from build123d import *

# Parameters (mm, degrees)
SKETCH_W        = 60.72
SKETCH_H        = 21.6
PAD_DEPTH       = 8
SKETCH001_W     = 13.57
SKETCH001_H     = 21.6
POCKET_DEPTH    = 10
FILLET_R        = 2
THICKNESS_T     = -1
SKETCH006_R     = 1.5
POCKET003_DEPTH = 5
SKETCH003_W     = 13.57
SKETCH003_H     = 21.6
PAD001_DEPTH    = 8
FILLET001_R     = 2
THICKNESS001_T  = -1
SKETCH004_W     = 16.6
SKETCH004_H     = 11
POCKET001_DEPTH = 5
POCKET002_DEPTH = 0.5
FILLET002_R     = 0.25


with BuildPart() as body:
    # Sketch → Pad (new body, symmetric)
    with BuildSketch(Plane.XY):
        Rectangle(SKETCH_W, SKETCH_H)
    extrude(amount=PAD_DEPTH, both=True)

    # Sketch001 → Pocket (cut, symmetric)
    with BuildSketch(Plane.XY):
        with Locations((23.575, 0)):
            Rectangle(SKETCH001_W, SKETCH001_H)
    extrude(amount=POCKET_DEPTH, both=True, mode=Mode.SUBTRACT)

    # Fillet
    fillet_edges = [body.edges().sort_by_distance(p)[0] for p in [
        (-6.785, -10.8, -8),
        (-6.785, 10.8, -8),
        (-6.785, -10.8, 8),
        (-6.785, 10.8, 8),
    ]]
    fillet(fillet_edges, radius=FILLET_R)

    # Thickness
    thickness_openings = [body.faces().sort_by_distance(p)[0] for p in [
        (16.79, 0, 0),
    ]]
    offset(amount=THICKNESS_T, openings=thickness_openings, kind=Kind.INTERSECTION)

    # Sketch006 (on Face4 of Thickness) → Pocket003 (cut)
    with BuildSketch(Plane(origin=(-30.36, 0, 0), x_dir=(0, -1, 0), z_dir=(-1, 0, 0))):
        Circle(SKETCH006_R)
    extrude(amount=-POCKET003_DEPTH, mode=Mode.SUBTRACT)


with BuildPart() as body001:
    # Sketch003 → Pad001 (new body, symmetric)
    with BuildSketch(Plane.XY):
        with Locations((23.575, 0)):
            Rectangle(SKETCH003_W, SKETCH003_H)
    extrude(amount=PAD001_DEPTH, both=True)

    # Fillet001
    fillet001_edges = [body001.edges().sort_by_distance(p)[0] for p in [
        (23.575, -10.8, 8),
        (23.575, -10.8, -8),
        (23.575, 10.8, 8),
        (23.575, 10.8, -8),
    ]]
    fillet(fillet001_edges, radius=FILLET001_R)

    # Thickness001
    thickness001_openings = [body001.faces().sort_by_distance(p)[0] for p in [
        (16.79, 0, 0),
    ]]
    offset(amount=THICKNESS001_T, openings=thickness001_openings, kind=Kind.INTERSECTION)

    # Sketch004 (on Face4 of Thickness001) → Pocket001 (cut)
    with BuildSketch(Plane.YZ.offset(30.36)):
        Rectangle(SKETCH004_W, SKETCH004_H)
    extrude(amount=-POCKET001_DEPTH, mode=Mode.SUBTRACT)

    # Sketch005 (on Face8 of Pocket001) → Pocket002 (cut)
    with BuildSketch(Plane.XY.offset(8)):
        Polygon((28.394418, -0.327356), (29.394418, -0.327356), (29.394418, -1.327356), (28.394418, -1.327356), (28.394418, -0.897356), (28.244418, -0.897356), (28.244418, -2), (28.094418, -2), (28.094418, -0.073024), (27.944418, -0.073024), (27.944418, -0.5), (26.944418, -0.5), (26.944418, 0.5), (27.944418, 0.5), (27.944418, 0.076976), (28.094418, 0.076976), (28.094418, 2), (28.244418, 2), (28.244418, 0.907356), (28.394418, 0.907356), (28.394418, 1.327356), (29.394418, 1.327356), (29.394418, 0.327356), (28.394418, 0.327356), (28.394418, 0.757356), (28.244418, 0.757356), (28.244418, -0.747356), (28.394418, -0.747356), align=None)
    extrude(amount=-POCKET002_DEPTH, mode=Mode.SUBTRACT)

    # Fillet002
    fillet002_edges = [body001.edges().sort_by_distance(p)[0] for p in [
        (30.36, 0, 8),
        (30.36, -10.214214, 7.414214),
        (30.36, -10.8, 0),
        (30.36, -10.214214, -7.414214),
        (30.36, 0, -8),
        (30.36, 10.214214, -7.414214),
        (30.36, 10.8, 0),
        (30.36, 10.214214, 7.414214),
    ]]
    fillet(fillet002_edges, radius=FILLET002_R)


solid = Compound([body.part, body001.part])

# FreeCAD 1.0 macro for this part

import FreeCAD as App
import Part
import Sketcher

V = App.Vector


def edges_at(feature, points):
    """Names of the edges that pass closest to the given points."""
    edges = feature.Shape.Edges
    near = lambda p: min(range(len(edges)), key=lambda i: edges[i].distToShape(Part.Vertex(*p))[0])
    return sorted({f"Edge{near(p) + 1}" for p in points})


def faces_at(feature, points):
    """Names of the faces that lie closest to the given points."""
    faces = feature.Shape.Faces
    near = lambda p: min(range(len(faces)), key=lambda i: faces[i].distToShape(Part.Vertex(*p))[0])
    return sorted({f"Face{near(p) + 1}" for p in points})

doc = App.newDocument("Part")
body = doc.addObject("PartDesign::Body", "Body")

# Sketch on XY plane
sketch1 = body.newObject("Sketcher::SketchObject", "Sketch")
sketch1.AttachmentSupport = (doc.getObject("XY_Plane"), [""])
sketch1.MapMode = "FlatFace"
sketch1.addGeometry(Part.LineSegment(V(-30.36, 10.8, 0), V(-30.36, -10.8, 0)), False)
sketch1.addGeometry(Part.LineSegment(V(-30.36, -10.8, 0), V(30.36, -10.8, 0)), False)
sketch1.addGeometry(Part.LineSegment(V(30.36, -10.8, 0), V(30.36, 10.8, 0)), False)
sketch1.addGeometry(Part.LineSegment(V(30.36, 10.8, 0), V(-30.36, 10.8, 0)), False)
sketch1.addConstraint(Sketcher.Constraint("Coincident", 0, 2, 1, 1))
sketch1.addConstraint(Sketcher.Constraint("Coincident", 1, 2, 2, 1))
sketch1.addConstraint(Sketcher.Constraint("Coincident", 2, 2, 3, 1))
sketch1.addConstraint(Sketcher.Constraint("Coincident", 3, 2, 0, 1))
sketch1.addConstraint(Sketcher.Constraint("Vertical", 0))
sketch1.addConstraint(Sketcher.Constraint("Horizontal", 1))
sketch1.addConstraint(Sketcher.Constraint("Vertical", 2))
sketch1.addConstraint(Sketcher.Constraint("Horizontal", 3))
sketch1.addConstraint(Sketcher.Constraint("Symmetric", 0, 2, 2, 2, -1, 1))
sketch1.addConstraint(Sketcher.Constraint("DistanceY", 0, 2, 0, 1, 21.6))
sketch1.addConstraint(Sketcher.Constraint("DistanceX", 1, 1, 1, 2, 60.72))
pad1 = body.newObject("PartDesign::Pad", "Pad")
pad1.Profile = sketch1
pad1.Length = 16
pad1.Midplane = True

# Sketch on XY plane
sketch2 = body.newObject("Sketcher::SketchObject", "Sketch001")
sketch2.AttachmentSupport = (doc.getObject("XY_Plane"), [""])
sketch2.MapMode = "FlatFace"
sketch2.addGeometry(Part.LineSegment(V(16.79, 10.8, 0), V(16.79, -10.8, 0)), False)
sketch2.addGeometry(Part.LineSegment(V(16.79, -10.8, 0), V(30.36, -10.8, 0)), False)
sketch2.addGeometry(Part.LineSegment(V(30.36, -10.8, 0), V(30.36, 10.8, 0)), False)
sketch2.addGeometry(Part.LineSegment(V(30.36, 10.8, 0), V(16.79, 10.8, 0)), False)
sketch2.addConstraint(Sketcher.Constraint("Coincident", 0, 2, 1, 1))
sketch2.addConstraint(Sketcher.Constraint("Coincident", 1, 2, 2, 1))
sketch2.addConstraint(Sketcher.Constraint("Coincident", 2, 2, 3, 1))
sketch2.addConstraint(Sketcher.Constraint("Coincident", 3, 2, 0, 1))
sketch2.addConstraint(Sketcher.Constraint("Vertical", 0))
sketch2.addConstraint(Sketcher.Constraint("Horizontal", 1))
sketch2.addConstraint(Sketcher.Constraint("Vertical", 2))
sketch2.addConstraint(Sketcher.Constraint("Horizontal", 3))
sketch2.addConstraint(Sketcher.Constraint("DistanceY", 0, 2, 0, 1, 21.6))
sketch2.addConstraint(Sketcher.Constraint("DistanceX", 1, 1, 1, 2, 13.57))
sketch2.addConstraint(Sketcher.Constraint("DistanceY", 0, 2, -1, 1, 10.8))
sketch2.addConstraint(Sketcher.Constraint("DistanceX", -1, 1, 0, 2, 16.79))
pocket1 = body.newObject("PartDesign::Pocket", "Pocket")
pocket1.Profile = sketch2
pocket1.Length = 20
pocket1.Midplane = True
doc.recompute()

fillet = body.newObject("PartDesign::Fillet", "Fillet")
fillet.Base = (pocket1, edges_at(pocket1, [
    (-6.785, -10.8, -8),
    (-6.785, 10.8, -8),
    (-6.785, -10.8, 8),
    (-6.785, 10.8, 8),
]))
fillet.Radius = 2
doc.recompute()

thickness = body.newObject("PartDesign::Thickness", "Thickness")
thickness.Base = (fillet, faces_at(fillet, [(16.79, 0, 0)]))
thickness.Value = 1
thickness.Reversed = True
thickness.Join = "Intersection"

# Sketch on YZ plane
sketch3 = body.newObject("Sketcher::SketchObject", "Sketch002")
sketch3.AttachmentSupport = (doc.getObject("YZ_Plane"), [""])
sketch3.MapMode = "FlatFace"
sketch3.AttachmentOffset = App.Placement(V(0, 0, -30.36), App.Rotation())
sketch3.addGeometry(Part.Circle(V(0, 0, 0), V(0, 0, 1), 1.5), False)
sketch3.addConstraint(Sketcher.Constraint("Coincident", 0, 3, -1, 1))
sketch3.addConstraint(Sketcher.Constraint("Diameter", 0, 3.0))
pocket2 = body.newObject("PartDesign::Pocket", "Pocket001")
pocket2.Profile = sketch3
pocket2.Length = 5
pocket2.Reversed = True
body2 = doc.addObject("PartDesign::Body", "Body001")

# Sketch on XY plane
sketch4 = body2.newObject("Sketcher::SketchObject", "Sketch003")
sketch4.AttachmentSupport = (doc.getObject("XY_Plane001"), [""])
sketch4.MapMode = "FlatFace"
sketch4.addGeometry(Part.LineSegment(V(16.79, 10.8, 0), V(16.79, -10.8, 0)), False)
sketch4.addGeometry(Part.LineSegment(V(16.79, -10.8, 0), V(30.36, -10.8, 0)), False)
sketch4.addGeometry(Part.LineSegment(V(30.36, -10.8, 0), V(30.36, 10.8, 0)), False)
sketch4.addGeometry(Part.LineSegment(V(30.36, 10.8, 0), V(16.79, 10.8, 0)), False)
sketch4.addConstraint(Sketcher.Constraint("Coincident", 0, 2, 1, 1))
sketch4.addConstraint(Sketcher.Constraint("Coincident", 1, 2, 2, 1))
sketch4.addConstraint(Sketcher.Constraint("Coincident", 2, 2, 3, 1))
sketch4.addConstraint(Sketcher.Constraint("Coincident", 3, 2, 0, 1))
sketch4.addConstraint(Sketcher.Constraint("Vertical", 0))
sketch4.addConstraint(Sketcher.Constraint("Horizontal", 1))
sketch4.addConstraint(Sketcher.Constraint("Vertical", 2))
sketch4.addConstraint(Sketcher.Constraint("Horizontal", 3))
sketch4.addConstraint(Sketcher.Constraint("DistanceY", 0, 2, 0, 1, 21.6))
sketch4.addConstraint(Sketcher.Constraint("DistanceX", 1, 1, 1, 2, 13.57))
sketch4.addConstraint(Sketcher.Constraint("DistanceY", 0, 2, -1, 1, 10.8))
sketch4.addConstraint(Sketcher.Constraint("DistanceX", -1, 1, 0, 2, 16.79))
pad2 = body2.newObject("PartDesign::Pad", "Pad001")
pad2.Profile = sketch4
pad2.Length = 16
pad2.Midplane = True
doc.recompute()

fillet2 = body2.newObject("PartDesign::Fillet", "Fillet001")
fillet2.Base = (pad2, edges_at(pad2, [
    (23.575, -10.8, 8),
    (23.575, -10.8, -8),
    (23.575, 10.8, 8),
    (23.575, 10.8, -8),
]))
fillet2.Radius = 2
doc.recompute()

thickness2 = body2.newObject("PartDesign::Thickness", "Thickness001")
thickness2.Base = (fillet2, faces_at(fillet2, [(16.79, 0, 0)]))
thickness2.Value = 1
thickness2.Reversed = True
thickness2.Join = "Intersection"

# Sketch on YZ plane
sketch5 = body2.newObject("Sketcher::SketchObject", "Sketch004")
sketch5.AttachmentSupport = (doc.getObject("YZ_Plane001"), [""])
sketch5.MapMode = "FlatFace"
sketch5.AttachmentOffset = App.Placement(V(0, 0, 30.36), App.Rotation())
sketch5.addGeometry(Part.LineSegment(V(-8.3, 5.5, 0), V(-8.3, -5.5, 0)), False)
sketch5.addGeometry(Part.LineSegment(V(-8.3, -5.5, 0), V(8.3, -5.5, 0)), False)
sketch5.addGeometry(Part.LineSegment(V(8.3, -5.5, 0), V(8.3, 5.5, 0)), False)
sketch5.addGeometry(Part.LineSegment(V(8.3, 5.5, 0), V(-8.3, 5.5, 0)), False)
sketch5.addConstraint(Sketcher.Constraint("Coincident", 0, 2, 1, 1))
sketch5.addConstraint(Sketcher.Constraint("Coincident", 1, 2, 2, 1))
sketch5.addConstraint(Sketcher.Constraint("Coincident", 2, 2, 3, 1))
sketch5.addConstraint(Sketcher.Constraint("Coincident", 3, 2, 0, 1))
sketch5.addConstraint(Sketcher.Constraint("Vertical", 0))
sketch5.addConstraint(Sketcher.Constraint("Horizontal", 1))
sketch5.addConstraint(Sketcher.Constraint("Vertical", 2))
sketch5.addConstraint(Sketcher.Constraint("Horizontal", 3))
sketch5.addConstraint(Sketcher.Constraint("Symmetric", 0, 2, 2, 2, -1, 1))
sketch5.addConstraint(Sketcher.Constraint("DistanceY", 0, 2, 0, 1, 11.0))
sketch5.addConstraint(Sketcher.Constraint("DistanceX", 1, 1, 1, 2, 16.6))
pocket3 = body2.newObject("PartDesign::Pocket", "Pocket002")
pocket3.Profile = sketch5
pocket3.Length = 5

# Sketch on XY plane
sketch6 = body2.newObject("Sketcher::SketchObject", "Sketch005")
sketch6.AttachmentSupport = (doc.getObject("XY_Plane001"), [""])
sketch6.MapMode = "FlatFace"
sketch6.AttachmentOffset = App.Placement(V(0, 0, 8), App.Rotation())
sketch6.addGeometry(Part.LineSegment(V(29.394418, -0.327356, 0), V(28.394418, -0.327356, 0)), False)
sketch6.addGeometry(Part.LineSegment(V(28.394418, -0.327356, 0), V(28.394418, -0.747356, 0)), False)
sketch6.addGeometry(Part.LineSegment(V(28.394418, -0.747356, 0), V(28.244418, -0.747356, 0)), False)
sketch6.addGeometry(Part.LineSegment(V(28.244418, -0.747356, 0), V(28.244418, 0.757356, 0)), False)
sketch6.addGeometry(Part.LineSegment(V(28.244418, 0.757356, 0), V(28.394418, 0.757356, 0)), False)
sketch6.addGeometry(Part.LineSegment(V(28.394418, 0.757356, 0), V(28.394418, 0.327356, 0)), False)
sketch6.addGeometry(Part.LineSegment(V(28.394418, 0.327356, 0), V(29.394418, 0.327356, 0)), False)
sketch6.addGeometry(Part.LineSegment(V(29.394418, 0.327356, 0), V(29.394418, 1.327356, 0)), False)
sketch6.addGeometry(Part.LineSegment(V(29.394418, 1.327356, 0), V(28.394418, 1.327356, 0)), False)
sketch6.addGeometry(Part.LineSegment(V(28.394418, 1.327356, 0), V(28.394418, 0.907356, 0)), False)
sketch6.addGeometry(Part.LineSegment(V(28.394418, 0.907356, 0), V(28.244418, 0.907356, 0)), False)
sketch6.addGeometry(Part.LineSegment(V(28.244418, 0.907356, 0), V(28.244418, 2, 0)), False)
sketch6.addGeometry(Part.LineSegment(V(28.244418, 2, 0), V(28.094418, 2, 0)), False)
sketch6.addGeometry(Part.LineSegment(V(28.094418, 2, 0), V(28.094418, 0.076976, 0)), False)
sketch6.addGeometry(Part.LineSegment(V(28.094418, 0.076976, 0), V(27.944418, 0.076976, 0)), False)
sketch6.addGeometry(Part.LineSegment(V(27.944418, 0.076976, 0), V(27.944418, 0.5, 0)), False)
sketch6.addGeometry(Part.LineSegment(V(27.944418, 0.5, 0), V(26.944418, 0.5, 0)), False)
sketch6.addGeometry(Part.LineSegment(V(26.944418, 0.5, 0), V(26.944418, -0.5, 0)), False)
sketch6.addGeometry(Part.LineSegment(V(26.944418, -0.5, 0), V(27.944418, -0.5, 0)), False)
sketch6.addGeometry(Part.LineSegment(V(27.944418, -0.5, 0), V(27.944418, -0.073024, 0)), False)
sketch6.addGeometry(Part.LineSegment(V(27.944418, -0.073024, 0), V(28.094418, -0.073024, 0)), False)
sketch6.addGeometry(Part.LineSegment(V(28.094418, -0.073024, 0), V(28.094418, -2, 0)), False)
sketch6.addGeometry(Part.LineSegment(V(28.094418, -2, 0), V(28.244418, -2, 0)), False)
sketch6.addGeometry(Part.LineSegment(V(28.244418, -2, 0), V(28.244418, -0.897356, 0)), False)
sketch6.addGeometry(Part.LineSegment(V(28.244418, -0.897356, 0), V(28.394418, -0.897356, 0)), False)
sketch6.addGeometry(Part.LineSegment(V(28.394418, -0.897356, 0), V(28.394418, -1.327356, 0)), False)
sketch6.addGeometry(Part.LineSegment(V(28.394418, -1.327356, 0), V(29.394418, -1.327356, 0)), False)
sketch6.addGeometry(Part.LineSegment(V(29.394418, -1.327356, 0), V(29.394418, -0.327356, 0)), False)
sketch6.addConstraint(Sketcher.Constraint("Coincident", 0, 2, 1, 1))
sketch6.addConstraint(Sketcher.Constraint("Coincident", 1, 2, 2, 1))
sketch6.addConstraint(Sketcher.Constraint("Coincident", 2, 2, 3, 1))
sketch6.addConstraint(Sketcher.Constraint("Coincident", 3, 2, 4, 1))
sketch6.addConstraint(Sketcher.Constraint("Coincident", 4, 2, 5, 1))
sketch6.addConstraint(Sketcher.Constraint("Coincident", 5, 2, 6, 1))
sketch6.addConstraint(Sketcher.Constraint("Coincident", 6, 2, 7, 1))
sketch6.addConstraint(Sketcher.Constraint("Coincident", 7, 2, 8, 1))
sketch6.addConstraint(Sketcher.Constraint("Coincident", 8, 2, 9, 1))
sketch6.addConstraint(Sketcher.Constraint("Coincident", 9, 2, 10, 1))
sketch6.addConstraint(Sketcher.Constraint("Coincident", 10, 2, 11, 1))
sketch6.addConstraint(Sketcher.Constraint("Coincident", 11, 2, 12, 1))
sketch6.addConstraint(Sketcher.Constraint("Coincident", 12, 2, 13, 1))
sketch6.addConstraint(Sketcher.Constraint("Coincident", 13, 2, 14, 1))
sketch6.addConstraint(Sketcher.Constraint("Coincident", 14, 2, 15, 1))
sketch6.addConstraint(Sketcher.Constraint("Coincident", 15, 2, 16, 1))
sketch6.addConstraint(Sketcher.Constraint("Coincident", 16, 2, 17, 1))
sketch6.addConstraint(Sketcher.Constraint("Coincident", 17, 2, 18, 1))
sketch6.addConstraint(Sketcher.Constraint("Coincident", 18, 2, 19, 1))
sketch6.addConstraint(Sketcher.Constraint("Coincident", 19, 2, 20, 1))
sketch6.addConstraint(Sketcher.Constraint("Coincident", 20, 2, 21, 1))
sketch6.addConstraint(Sketcher.Constraint("Coincident", 21, 2, 22, 1))
sketch6.addConstraint(Sketcher.Constraint("Coincident", 22, 2, 23, 1))
sketch6.addConstraint(Sketcher.Constraint("Coincident", 23, 2, 24, 1))
sketch6.addConstraint(Sketcher.Constraint("Coincident", 24, 2, 25, 1))
sketch6.addConstraint(Sketcher.Constraint("Coincident", 25, 2, 26, 1))
sketch6.addConstraint(Sketcher.Constraint("Coincident", 26, 2, 27, 1))
sketch6.addConstraint(Sketcher.Constraint("Coincident", 27, 2, 0, 1))
sketch6.addConstraint(Sketcher.Constraint("Horizontal", 0))
sketch6.addConstraint(Sketcher.Constraint("Vertical", 1))
sketch6.addConstraint(Sketcher.Constraint("Horizontal", 2))
sketch6.addConstraint(Sketcher.Constraint("Vertical", 3))
sketch6.addConstraint(Sketcher.Constraint("Horizontal", 4))
sketch6.addConstraint(Sketcher.Constraint("Vertical", 5))
sketch6.addConstraint(Sketcher.Constraint("Horizontal", 6))
sketch6.addConstraint(Sketcher.Constraint("Vertical", 7))
sketch6.addConstraint(Sketcher.Constraint("Horizontal", 8))
sketch6.addConstraint(Sketcher.Constraint("Vertical", 9))
sketch6.addConstraint(Sketcher.Constraint("Horizontal", 10))
sketch6.addConstraint(Sketcher.Constraint("Vertical", 11))
sketch6.addConstraint(Sketcher.Constraint("Horizontal", 12))
sketch6.addConstraint(Sketcher.Constraint("Vertical", 13))
sketch6.addConstraint(Sketcher.Constraint("Horizontal", 14))
sketch6.addConstraint(Sketcher.Constraint("Vertical", 15))
sketch6.addConstraint(Sketcher.Constraint("Horizontal", 16))
sketch6.addConstraint(Sketcher.Constraint("Vertical", 17))
sketch6.addConstraint(Sketcher.Constraint("Horizontal", 18))
sketch6.addConstraint(Sketcher.Constraint("Vertical", 19))
sketch6.addConstraint(Sketcher.Constraint("Horizontal", 20))
sketch6.addConstraint(Sketcher.Constraint("Vertical", 21))
sketch6.addConstraint(Sketcher.Constraint("Horizontal", 22))
sketch6.addConstraint(Sketcher.Constraint("Vertical", 23))
sketch6.addConstraint(Sketcher.Constraint("Horizontal", 24))
sketch6.addConstraint(Sketcher.Constraint("Vertical", 25))
sketch6.addConstraint(Sketcher.Constraint("Horizontal", 26))
sketch6.addConstraint(Sketcher.Constraint("Vertical", 27))
sketch6.addConstraint(Sketcher.Constraint("Symmetric", 0, 2, 5, 2, -1))
sketch6.addConstraint(Sketcher.Constraint("Symmetric", 15, 2, 18, 2, -1))
sketch6.addConstraint(Sketcher.Constraint("Symmetric", 12, 2, 21, 2, -1))
sketch6.addConstraint(Sketcher.Constraint("Symmetric", 8, 2, 25, 2, -1))
sketch6.addConstraint(Sketcher.Constraint("Vertical", 5, 2, 8, 2))
sketch6.addConstraint(Sketcher.Constraint("Vertical", 3, 2, 10, 2))
sketch6.addConstraint(Sketcher.Constraint("Vertical", 11, 2, 22, 2))
sketch6.addConstraint(Sketcher.Constraint("Vertical", 7, 2, 26, 2))
sketch6.addConstraint(Sketcher.Constraint("Equal", 10, 12))
sketch6.addConstraint(Sketcher.Constraint("Equal", 12, 14))
sketch6.addConstraint(Sketcher.Constraint("Equal", 8, 16))
sketch6.addConstraint(Sketcher.Constraint("Equal", 26, 7))
sketch6.addConstraint(Sketcher.Constraint("Equal", 1, 9))
sketch6.addConstraint(Sketcher.Constraint("Equal", 7, 17))
sketch6.addConstraint(Sketcher.Constraint("Equal", 5, 25))
sketch6.addConstraint(Sketcher.Constraint("DistanceX", 0, 2, 0, 1, 1.0))
sketch6.addConstraint(Sketcher.Constraint("DistanceY", -1, 1, 11, 2, 2.0))
sketch6.addConstraint(Sketcher.Constraint("DistanceX", 2, 2, 2, 1, 0.15))
sketch6.addConstraint(Sketcher.Constraint("DistanceY", 1, 2, 1, 1, 0.42))
sketch6.addConstraint(Sketcher.Constraint("DistanceY", 5, 2, 5, 1, 0.43))
sketch6.addConstraint(Sketcher.Constraint("DistanceY", 19, 2, 14, 2, 0.15))
sketch6.addConstraint(Sketcher.Constraint("DistanceY", 3, 1, 3, 2, 1.504712))
sketch6.addConstraint(Sketcher.Constraint("DistanceY", 13, 2, 13, 1, 1.923024))
sketch6.addConstraint(Sketcher.Constraint("DistanceX", -1, 1, 0, 2, 28.394418))
pocket4 = body2.newObject("PartDesign::Pocket", "Pocket003")
pocket4.Profile = sketch6
pocket4.Length = 0.5
doc.recompute()

fillet3 = body2.newObject("PartDesign::Fillet", "Fillet002")
fillet3.Base = (pocket4, edges_at(pocket4, [
    (30.36, 0, 8),
    (30.36, -10.214, 7.414),
    (30.36, -10.8, 0),
    (30.36, -10.214, -7.414),
    (30.36, 0, -8),
    (30.36, 10.214, -7.414),
    (30.36, 10.8, 0),
    (30.36, 10.214, 7.414),
]))
fillet3.Radius = 0.25

doc.recompute()
